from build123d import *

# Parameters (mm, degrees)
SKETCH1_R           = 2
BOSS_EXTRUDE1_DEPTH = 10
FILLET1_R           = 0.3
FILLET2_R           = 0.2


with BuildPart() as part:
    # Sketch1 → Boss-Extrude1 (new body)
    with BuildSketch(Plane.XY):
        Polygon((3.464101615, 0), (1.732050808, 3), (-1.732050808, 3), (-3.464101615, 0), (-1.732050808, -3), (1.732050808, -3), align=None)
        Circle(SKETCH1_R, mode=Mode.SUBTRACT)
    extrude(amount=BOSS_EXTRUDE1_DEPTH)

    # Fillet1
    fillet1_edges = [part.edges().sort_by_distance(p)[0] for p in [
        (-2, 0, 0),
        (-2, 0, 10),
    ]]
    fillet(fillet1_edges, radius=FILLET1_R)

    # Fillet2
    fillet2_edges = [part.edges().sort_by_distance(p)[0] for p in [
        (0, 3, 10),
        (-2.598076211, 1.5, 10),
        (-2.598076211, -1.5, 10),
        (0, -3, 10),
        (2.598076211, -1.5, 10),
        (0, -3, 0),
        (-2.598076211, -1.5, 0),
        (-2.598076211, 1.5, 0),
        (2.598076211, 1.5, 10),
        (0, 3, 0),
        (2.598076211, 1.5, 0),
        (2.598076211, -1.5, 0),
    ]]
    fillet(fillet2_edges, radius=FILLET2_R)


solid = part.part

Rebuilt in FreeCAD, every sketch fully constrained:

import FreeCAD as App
import Part
import Sketcher

V = App.Vector
Q = App.Units.Quantity


def edges_at(feature, points):
    """Names of the edges that pass closest to the given points."""
    edges = feature.Shape.Edges
    near = lambda p: min(range(len(edges)), key=lambda i: edges[i].distToShape(Part.Vertex(*p))[0])
    return sorted({f"Edge{near(p) + 1}" for p in points})

doc = App.newDocument("Part")
body = doc.addObject("PartDesign::Body", "Body")

# Sketch on XY plane
sketch1 = doc.addObject("Sketcher::SketchObject", "Sketch")
body.addObject(sketch1)
sketch1.AttachmentSupport = (doc.XY_Plane, [""])
sketch1.MapMode = "FlatFace"
sketch1.addGeometry([
    Part.LineSegment(V(3.5, 0, 0), V(1.7, 3, 0)),  # 0
    Part.LineSegment(V(1.7, 3, 0), V(-1.7, 3, 0)),  # 1
    Part.LineSegment(V(-1.7, 3, 0), V(-3.5, 0, 0)),  # 2
    Part.LineSegment(V(-3.5, 0, 0), V(-1.7, -3, 0)),  # 3
    Part.LineSegment(V(-1.7, -3, 0), V(1.7, -3, 0)),  # 4
    Part.LineSegment(V(1.7, -3, 0), V(3.5, 0, 0)),  # 5
    Part.Circle(V(0, 0, 0), V(0, 0, 1), 2),  # 6
], False)
sketch1.addConstraint([
    Sketcher.Constraint("Coincident", 0, 2, 1, 1),
    Sketcher.Constraint("Coincident", 1, 2, 2, 1),
    Sketcher.Constraint("Coincident", 2, 2, 3, 1),
    Sketcher.Constraint("Coincident", 3, 2, 4, 1),
    Sketcher.Constraint("Coincident", 4, 2, 5, 1),
    Sketcher.Constraint("Coincident", 5, 2, 0, 1),
    Sketcher.Constraint("Horizontal", 1),
    Sketcher.Constraint("Horizontal", 4),
    Sketcher.Constraint("Coincident", 6, 3, -1, 1),
    Sketcher.Constraint("Symmetric", 0, 2, 3, 2, -1, 1),
    Sketcher.Constraint("Symmetric", 2, 2, 5, 2, -1, 1),
    Sketcher.Constraint("PointOnObject", 2, 2, -1),
    Sketcher.Constraint("Parallel", 2, 5),
    Sketcher.Constraint("Vertical", 1, 2, 3, 2),
    Sketcher.Constraint("Diameter", 6, 4.0),
    Sketcher.Constraint("Angle", 0, Q("120 deg")),
    Sketcher.Constraint("DistanceY", -1, 1, 0, 2, 3.0),
    Sketcher.Constraint("DistanceX", 1, 2, 1, 1, 3.464102),
])
pad1 = doc.addObject("PartDesign::Pad", "Pad")
body.addObject(pad1)
pad1.Profile = sketch1
pad1.Length = 10
doc.recompute()

fillet = doc.addObject("PartDesign::Fillet", "Fillet")
body.addObject(fillet)
fillet.Base = (pad1, edges_at(pad1, [(-2, 0, 0), (-2, 0, 10)]))
fillet.Radius = 0.3
doc.recompute()

fillet2 = doc.addObject("PartDesign::Fillet", "Fillet001")
body.addObject(fillet2)
fillet2.Base = (fillet, edges_at(fillet, [
    (0, 3, 10),
    (-2.598, 1.5, 10),
    (-2.598, -1.5, 10),
    (0, -3, 10),
    (2.598, -1.5, 10),
    (0, -3, 0),
    (-2.598, -1.5, 0),
    (-2.598, 1.5, 0),
    (2.598, 1.5, 10),
    (0, 3, 0),
    (2.598, 1.5, 0),
    (2.598, -1.5, 0),
]))
fillet2.Radius = 0.2

doc.recompute()
